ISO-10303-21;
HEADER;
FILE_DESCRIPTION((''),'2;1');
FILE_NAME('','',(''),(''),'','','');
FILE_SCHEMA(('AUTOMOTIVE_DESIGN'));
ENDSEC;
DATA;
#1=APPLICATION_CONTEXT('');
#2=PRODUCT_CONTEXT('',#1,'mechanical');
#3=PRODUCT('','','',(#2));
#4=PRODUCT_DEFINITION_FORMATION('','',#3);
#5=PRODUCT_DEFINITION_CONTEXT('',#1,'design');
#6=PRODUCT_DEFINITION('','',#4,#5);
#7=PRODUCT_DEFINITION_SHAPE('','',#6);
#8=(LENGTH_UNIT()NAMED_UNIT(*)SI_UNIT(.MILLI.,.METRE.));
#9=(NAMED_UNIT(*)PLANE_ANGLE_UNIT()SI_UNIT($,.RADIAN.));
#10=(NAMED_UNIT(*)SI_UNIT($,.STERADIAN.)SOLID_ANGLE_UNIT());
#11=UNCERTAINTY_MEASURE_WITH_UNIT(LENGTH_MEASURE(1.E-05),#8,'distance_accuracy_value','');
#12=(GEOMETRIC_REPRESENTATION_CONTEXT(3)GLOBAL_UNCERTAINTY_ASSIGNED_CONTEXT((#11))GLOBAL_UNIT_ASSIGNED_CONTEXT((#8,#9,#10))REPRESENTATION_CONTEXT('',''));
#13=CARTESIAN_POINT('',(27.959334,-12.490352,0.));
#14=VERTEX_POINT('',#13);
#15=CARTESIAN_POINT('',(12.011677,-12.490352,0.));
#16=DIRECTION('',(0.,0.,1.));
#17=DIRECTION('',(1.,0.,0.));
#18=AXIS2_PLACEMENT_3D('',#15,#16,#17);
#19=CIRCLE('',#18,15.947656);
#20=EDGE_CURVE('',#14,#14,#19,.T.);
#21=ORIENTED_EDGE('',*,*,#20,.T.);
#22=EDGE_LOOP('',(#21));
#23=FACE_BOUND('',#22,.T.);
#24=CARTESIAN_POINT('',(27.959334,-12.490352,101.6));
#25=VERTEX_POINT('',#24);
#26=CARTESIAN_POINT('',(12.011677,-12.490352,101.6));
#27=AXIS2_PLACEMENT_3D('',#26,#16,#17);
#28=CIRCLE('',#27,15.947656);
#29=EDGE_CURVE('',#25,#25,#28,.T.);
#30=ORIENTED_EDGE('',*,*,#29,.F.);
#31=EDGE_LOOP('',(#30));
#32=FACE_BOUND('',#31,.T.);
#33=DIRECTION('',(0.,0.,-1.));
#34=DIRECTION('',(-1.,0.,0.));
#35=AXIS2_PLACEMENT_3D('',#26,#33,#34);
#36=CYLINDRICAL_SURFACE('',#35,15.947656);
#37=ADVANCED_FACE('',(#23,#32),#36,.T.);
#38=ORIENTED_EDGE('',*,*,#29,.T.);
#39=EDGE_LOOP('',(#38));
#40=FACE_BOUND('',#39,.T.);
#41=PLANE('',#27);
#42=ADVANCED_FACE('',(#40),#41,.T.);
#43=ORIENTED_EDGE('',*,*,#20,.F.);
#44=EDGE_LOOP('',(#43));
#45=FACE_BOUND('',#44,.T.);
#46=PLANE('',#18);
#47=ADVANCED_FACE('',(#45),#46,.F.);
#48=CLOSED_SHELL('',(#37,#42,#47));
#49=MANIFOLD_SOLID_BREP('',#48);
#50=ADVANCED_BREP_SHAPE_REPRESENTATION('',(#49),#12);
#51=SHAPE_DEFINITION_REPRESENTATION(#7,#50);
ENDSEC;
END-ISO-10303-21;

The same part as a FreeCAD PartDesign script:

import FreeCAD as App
import Part
import Sketcher
Q = App.Units.Quantity

doc = App.newDocument("Part")
body = doc.addObject("PartDesign::Body", "Body")

# Sketch on XY plane
sketch1 = body.newObject("Sketcher::SketchObject", "Sketch")
sketch1.AttachmentSupport = (doc.getObject("XY_Plane"), [""])
sketch1.MapMode = "FlatFace"
sketch1.addGeometry(Part.Circle(App.Vector(12, -12, 0), App.Vector(0, 0, 1), 16), False)
sketch1.addConstraint([
    Sketcher.Constraint("Diameter", 0, Q("31.895313 mm")),
    Sketcher.Constraint("DistanceX", -1, 1, 0, 3, Q("12.011677 mm")),
    Sketcher.Constraint("DistanceY", 0, 3, -1, 1, Q("12.490352 mm")),
])
pad1 = body.newObject("PartDesign::Pad", "Pad")
pad1.Profile = sketch1
pad1.Length = Q("4 in")

doc.recompute()
